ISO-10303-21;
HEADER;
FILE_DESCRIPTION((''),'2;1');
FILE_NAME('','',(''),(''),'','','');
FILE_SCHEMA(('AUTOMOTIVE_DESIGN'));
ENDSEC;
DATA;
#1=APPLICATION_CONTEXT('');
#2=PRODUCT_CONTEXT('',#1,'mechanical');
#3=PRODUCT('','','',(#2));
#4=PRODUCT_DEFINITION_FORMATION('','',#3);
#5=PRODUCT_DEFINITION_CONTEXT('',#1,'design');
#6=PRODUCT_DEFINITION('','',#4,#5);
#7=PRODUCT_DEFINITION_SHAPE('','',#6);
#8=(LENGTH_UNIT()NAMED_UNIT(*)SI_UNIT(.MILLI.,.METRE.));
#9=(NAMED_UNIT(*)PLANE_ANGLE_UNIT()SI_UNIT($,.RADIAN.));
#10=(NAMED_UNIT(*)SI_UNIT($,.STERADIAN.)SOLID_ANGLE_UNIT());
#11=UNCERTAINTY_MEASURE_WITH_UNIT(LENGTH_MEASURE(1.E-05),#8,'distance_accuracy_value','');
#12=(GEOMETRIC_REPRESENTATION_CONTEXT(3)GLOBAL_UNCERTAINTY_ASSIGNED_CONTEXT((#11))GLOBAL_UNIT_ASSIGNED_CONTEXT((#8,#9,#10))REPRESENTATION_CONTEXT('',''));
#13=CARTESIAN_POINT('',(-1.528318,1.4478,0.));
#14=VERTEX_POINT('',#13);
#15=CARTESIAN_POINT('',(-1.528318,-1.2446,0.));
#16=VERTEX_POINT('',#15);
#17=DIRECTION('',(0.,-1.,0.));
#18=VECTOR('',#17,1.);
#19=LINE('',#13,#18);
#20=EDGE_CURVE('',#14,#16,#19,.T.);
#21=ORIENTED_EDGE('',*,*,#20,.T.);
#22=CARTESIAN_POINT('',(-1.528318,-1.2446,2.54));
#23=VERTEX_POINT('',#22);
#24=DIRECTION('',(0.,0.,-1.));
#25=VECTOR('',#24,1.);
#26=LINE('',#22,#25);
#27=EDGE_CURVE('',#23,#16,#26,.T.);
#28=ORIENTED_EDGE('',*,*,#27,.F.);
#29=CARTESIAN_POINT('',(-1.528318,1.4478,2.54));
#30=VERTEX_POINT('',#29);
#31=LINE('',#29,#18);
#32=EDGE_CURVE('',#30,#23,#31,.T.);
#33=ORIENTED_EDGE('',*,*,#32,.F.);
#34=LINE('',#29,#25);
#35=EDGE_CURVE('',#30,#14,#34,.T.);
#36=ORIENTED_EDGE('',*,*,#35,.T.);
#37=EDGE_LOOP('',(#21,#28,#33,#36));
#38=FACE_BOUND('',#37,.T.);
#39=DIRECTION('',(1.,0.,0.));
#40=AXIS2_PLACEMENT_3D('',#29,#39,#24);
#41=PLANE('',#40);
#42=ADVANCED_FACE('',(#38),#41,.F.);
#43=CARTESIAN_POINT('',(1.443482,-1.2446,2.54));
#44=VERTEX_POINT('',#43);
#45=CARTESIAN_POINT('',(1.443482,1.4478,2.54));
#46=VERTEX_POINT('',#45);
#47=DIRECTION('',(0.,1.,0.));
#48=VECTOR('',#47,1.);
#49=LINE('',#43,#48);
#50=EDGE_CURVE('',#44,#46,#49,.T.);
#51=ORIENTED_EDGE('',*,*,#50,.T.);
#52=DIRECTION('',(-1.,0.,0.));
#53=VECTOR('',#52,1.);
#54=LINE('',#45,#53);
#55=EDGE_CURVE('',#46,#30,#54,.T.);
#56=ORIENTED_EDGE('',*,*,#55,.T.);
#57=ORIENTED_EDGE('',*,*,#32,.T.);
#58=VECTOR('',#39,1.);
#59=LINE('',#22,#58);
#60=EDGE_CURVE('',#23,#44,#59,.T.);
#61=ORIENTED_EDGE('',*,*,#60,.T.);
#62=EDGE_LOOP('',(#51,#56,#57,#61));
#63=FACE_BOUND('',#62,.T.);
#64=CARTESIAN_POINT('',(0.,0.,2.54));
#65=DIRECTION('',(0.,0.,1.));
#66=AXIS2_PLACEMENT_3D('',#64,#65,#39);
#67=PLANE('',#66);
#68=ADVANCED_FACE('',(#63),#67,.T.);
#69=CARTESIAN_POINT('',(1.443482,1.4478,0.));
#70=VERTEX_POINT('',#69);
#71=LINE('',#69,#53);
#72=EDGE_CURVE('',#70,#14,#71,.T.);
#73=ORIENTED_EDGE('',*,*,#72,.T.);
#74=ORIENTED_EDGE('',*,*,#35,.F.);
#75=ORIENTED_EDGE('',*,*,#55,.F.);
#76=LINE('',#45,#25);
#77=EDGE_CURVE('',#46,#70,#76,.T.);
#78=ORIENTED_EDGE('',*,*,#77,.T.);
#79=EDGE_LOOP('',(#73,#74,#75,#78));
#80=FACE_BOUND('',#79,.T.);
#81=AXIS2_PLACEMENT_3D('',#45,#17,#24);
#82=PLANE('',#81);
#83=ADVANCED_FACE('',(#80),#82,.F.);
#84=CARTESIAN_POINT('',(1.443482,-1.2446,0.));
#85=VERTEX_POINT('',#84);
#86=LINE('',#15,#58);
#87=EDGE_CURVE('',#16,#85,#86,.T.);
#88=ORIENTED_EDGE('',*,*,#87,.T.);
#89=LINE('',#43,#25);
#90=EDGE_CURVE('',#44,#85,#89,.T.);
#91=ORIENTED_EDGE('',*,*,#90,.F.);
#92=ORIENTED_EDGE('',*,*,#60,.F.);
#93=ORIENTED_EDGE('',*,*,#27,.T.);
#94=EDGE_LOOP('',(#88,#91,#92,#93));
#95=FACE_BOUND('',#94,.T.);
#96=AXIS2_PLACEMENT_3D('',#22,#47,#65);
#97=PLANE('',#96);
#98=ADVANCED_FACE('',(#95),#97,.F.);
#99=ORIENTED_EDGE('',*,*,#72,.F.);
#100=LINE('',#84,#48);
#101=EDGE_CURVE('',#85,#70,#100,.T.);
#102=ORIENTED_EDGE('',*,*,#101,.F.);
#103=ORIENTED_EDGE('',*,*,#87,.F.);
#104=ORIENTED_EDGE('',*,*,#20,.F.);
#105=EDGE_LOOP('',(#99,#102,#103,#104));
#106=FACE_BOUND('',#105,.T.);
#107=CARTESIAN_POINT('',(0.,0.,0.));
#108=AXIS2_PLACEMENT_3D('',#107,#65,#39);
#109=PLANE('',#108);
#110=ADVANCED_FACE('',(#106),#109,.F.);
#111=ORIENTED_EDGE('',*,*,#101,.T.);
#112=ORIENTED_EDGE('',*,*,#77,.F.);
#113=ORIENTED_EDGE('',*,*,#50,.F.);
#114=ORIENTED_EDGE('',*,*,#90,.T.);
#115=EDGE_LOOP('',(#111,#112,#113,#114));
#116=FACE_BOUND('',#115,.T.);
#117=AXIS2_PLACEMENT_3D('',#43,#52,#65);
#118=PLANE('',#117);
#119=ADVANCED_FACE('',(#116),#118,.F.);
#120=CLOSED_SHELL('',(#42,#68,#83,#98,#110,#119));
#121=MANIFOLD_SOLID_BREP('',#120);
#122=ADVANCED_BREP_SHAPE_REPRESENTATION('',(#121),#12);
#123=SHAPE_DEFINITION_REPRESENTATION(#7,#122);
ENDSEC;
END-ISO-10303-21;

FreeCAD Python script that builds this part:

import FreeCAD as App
import Part
import Sketcher
from FreeCAD import Vector
Q = App.Units.Quantity

doc = App.newDocument("Part")
body = doc.addObject("PartDesign::Body", "Body")

# Sketch on XY plane
sketch1 = body.newObject("Sketcher::SketchObject", "Sketch")
sketch1.AttachmentSupport = (doc.getObject("XY_Plane"), [""])
sketch1.MapMode = "FlatFace"
sketch1.addGeometry([
    Part.LineSegment(Vector(-1.5, 1.4, 0), Vector(-1.5, -1.2, 0)),
    Part.LineSegment(Vector(-1.5, -1.2, 0), Vector(1.4, -1.2, 0)),
    Part.LineSegment(Vector(1.4, -1.2, 0), Vector(1.4, 1.4, 0)),
    Part.LineSegment(Vector(1.4, 1.4, 0), Vector(-1.5, 1.4, 0)),
], False)
sketch1.addConstraint([
    Sketcher.Constraint("Coincident", 0, 2, 1, 1),
    Sketcher.Constraint("Coincident", 1, 2, 2, 1),
    Sketcher.Constraint("Coincident", 2, 2, 3, 1),
    Sketcher.Constraint("Coincident", 3, 2, 0, 1),
    Sketcher.Constraint("Vertical", 0),
    Sketcher.Constraint("Horizontal", 1),
    Sketcher.Constraint("Vertical", 2),
    Sketcher.Constraint("Horizontal", 3),
    Sketcher.Constraint("DistanceX", 1, 1, 1, 2, Q("0.117 in")),
    Sketcher.Constraint("DistanceY", 0, 2, 0, 1, Q("0.106 in")),
    Sketcher.Constraint("DistanceY", 0, 2, -1, 1, Q("0.049 in")),
    Sketcher.Constraint("DistanceX", 0, 2, -1, 1, 1.528318),
])
pad1 = body.newObject("PartDesign::Pad", "Pad")
pad1.Profile = sketch1
pad1.Length = Q("0.1 in")

doc.recompute()
